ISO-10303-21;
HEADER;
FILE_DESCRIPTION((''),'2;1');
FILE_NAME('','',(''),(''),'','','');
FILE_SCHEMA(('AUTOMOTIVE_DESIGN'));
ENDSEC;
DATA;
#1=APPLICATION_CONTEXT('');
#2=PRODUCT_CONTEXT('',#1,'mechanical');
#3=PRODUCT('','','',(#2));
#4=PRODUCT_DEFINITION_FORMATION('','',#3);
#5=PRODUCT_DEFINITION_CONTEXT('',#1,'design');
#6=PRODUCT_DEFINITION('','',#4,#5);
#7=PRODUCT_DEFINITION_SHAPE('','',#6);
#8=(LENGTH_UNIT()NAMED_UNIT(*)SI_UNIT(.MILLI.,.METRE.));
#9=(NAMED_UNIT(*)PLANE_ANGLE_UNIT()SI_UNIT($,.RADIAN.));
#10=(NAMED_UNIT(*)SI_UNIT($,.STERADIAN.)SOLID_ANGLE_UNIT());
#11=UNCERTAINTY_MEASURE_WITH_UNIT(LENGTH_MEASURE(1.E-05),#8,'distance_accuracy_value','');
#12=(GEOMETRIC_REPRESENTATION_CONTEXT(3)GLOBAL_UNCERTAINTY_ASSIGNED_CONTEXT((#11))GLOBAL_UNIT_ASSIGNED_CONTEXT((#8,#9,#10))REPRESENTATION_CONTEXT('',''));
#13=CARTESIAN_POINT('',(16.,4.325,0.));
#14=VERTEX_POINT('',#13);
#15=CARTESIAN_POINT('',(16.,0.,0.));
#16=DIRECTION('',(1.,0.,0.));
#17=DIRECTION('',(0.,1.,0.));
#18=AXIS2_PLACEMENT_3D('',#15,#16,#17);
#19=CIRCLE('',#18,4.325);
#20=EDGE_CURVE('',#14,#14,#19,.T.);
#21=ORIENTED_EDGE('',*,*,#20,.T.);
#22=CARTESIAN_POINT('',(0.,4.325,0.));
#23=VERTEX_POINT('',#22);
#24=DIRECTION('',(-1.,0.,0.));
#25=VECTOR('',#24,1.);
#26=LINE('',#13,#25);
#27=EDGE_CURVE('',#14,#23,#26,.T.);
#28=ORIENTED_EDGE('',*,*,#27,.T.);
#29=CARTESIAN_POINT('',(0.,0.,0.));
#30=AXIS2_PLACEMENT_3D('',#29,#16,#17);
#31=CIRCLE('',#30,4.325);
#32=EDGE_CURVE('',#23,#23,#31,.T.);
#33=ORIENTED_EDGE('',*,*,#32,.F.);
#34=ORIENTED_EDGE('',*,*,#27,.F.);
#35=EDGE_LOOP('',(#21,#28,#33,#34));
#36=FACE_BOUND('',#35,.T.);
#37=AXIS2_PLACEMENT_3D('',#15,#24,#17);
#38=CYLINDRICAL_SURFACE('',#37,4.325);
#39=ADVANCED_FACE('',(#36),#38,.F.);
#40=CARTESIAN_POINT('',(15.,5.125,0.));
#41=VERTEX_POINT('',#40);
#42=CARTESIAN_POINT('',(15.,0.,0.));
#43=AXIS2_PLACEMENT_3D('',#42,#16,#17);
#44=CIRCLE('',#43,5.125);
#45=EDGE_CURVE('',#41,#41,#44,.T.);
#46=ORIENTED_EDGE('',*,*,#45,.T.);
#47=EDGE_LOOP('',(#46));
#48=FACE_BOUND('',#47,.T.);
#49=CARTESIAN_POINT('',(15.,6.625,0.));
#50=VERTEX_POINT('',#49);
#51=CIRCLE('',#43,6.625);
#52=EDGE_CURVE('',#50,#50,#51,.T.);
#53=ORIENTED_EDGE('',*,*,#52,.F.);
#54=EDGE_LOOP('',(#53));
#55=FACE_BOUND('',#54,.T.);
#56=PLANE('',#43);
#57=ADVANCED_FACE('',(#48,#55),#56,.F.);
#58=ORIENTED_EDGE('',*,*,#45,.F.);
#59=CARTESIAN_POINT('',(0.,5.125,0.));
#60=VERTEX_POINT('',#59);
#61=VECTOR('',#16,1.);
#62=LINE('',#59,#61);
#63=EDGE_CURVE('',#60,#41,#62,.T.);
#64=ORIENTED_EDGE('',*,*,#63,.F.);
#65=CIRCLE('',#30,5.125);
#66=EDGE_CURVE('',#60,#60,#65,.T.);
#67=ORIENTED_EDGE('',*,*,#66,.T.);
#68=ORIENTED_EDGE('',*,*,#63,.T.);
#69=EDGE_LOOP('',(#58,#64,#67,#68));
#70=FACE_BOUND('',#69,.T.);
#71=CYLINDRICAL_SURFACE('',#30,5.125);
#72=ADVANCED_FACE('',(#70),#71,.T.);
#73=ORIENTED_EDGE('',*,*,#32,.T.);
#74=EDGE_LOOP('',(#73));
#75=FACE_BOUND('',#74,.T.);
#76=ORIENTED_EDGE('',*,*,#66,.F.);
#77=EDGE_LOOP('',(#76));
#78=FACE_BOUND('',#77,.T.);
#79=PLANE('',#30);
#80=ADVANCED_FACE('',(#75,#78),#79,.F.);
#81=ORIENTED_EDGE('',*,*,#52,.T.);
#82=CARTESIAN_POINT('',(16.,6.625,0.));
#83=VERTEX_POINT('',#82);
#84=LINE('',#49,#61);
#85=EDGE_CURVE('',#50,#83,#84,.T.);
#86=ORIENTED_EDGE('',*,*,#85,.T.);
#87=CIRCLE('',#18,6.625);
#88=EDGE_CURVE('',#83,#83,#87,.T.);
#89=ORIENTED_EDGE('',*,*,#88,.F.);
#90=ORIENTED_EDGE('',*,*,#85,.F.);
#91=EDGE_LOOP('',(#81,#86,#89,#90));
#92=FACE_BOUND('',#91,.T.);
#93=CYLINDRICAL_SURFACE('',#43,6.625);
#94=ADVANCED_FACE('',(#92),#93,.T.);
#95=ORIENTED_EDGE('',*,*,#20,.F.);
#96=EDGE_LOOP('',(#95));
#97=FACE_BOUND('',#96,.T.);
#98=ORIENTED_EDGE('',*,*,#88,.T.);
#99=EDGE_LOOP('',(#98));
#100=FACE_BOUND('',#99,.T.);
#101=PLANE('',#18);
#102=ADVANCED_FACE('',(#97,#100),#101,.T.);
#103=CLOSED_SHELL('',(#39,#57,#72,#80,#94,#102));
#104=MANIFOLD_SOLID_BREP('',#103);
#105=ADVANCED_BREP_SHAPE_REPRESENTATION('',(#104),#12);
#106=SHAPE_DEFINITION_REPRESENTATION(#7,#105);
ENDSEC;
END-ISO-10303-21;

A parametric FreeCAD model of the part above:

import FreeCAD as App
import Part
import Sketcher
Q = App.Units.Quantity


def add_polygon(sketch, points):
    """Adds a closed chain of lines whose ends are joined by coincident constraints."""
    first, n = sketch.GeometryCount, len(points)
    for a, b in zip(points, points[1:] + points[:1]):
        sketch.addGeometry(Part.LineSegment(App.Vector(*a, 0), App.Vector(*b, 0)), False)
    for i in range(n):
        sketch.addConstraint(Sketcher.Constraint("Coincident", first + i, 2, first + (i + 1) % n, 1))

doc = App.newDocument("Part")
body = doc.addObject("PartDesign::Body", "Body")

sketch1 = doc.addObject("Sketcher::SketchObject", "Sketch")
body.addObject(sketch1)
sketch1.AttachmentSupport = (doc.XY_Plane, [""])
sketch1.MapMode = "FlatFace"
add_polygon(sketch1, [(15, 5.125), (0, 5.125), (0, 4.325), (16, 4.325), (16, 6.625), (15, 6.625)])
sketch1.addConstraint([
    Sketcher.Constraint("Horizontal", 0),
    Sketcher.Constraint("Vertical", 1),
    Sketcher.Constraint("Horizontal", 2),
    Sketcher.Constraint("Vertical", 3),
    Sketcher.Constraint("Horizontal", 4),
    Sketcher.Constraint("Vertical", 5),
    Sketcher.Constraint("PointOnObject", 0, 2, -2),
    Sketcher.Constraint("DistanceX", 0, 2, 0, 1, Q("15 mm")),
    Sketcher.Constraint("DistanceX", 4, 2, 4, 1, Q("1 mm")),
    Sketcher.Constraint("DistanceY", 1, 2, 1, 1, Q("0.8 mm")),
    Sketcher.Constraint("DistanceY", 5, 2, 5, 1, Q("1.5 mm")),
    Sketcher.Constraint("DistanceY", -1, 1, 3, 2, Q("6.625 mm")),
])
revolution = doc.addObject("PartDesign::Revolution", "Revolution")
body.addObject(revolution)
revolution.Profile = sketch1
revolution.ReferenceAxis = (sketch1, ["H_Axis"])
revolution.Angle = 360

doc.recompute()
